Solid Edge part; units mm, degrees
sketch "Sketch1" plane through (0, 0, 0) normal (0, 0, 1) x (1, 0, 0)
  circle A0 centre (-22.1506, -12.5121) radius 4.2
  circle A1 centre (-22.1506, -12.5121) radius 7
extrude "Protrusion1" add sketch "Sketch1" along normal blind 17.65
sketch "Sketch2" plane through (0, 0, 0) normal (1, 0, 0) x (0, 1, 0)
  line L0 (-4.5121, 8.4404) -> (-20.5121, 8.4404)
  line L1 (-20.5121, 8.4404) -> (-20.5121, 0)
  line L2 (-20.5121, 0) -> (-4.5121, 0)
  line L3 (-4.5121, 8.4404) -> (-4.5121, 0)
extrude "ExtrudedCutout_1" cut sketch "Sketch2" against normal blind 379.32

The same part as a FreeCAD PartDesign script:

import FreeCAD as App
import Part
import Sketcher
from FreeCAD import Vector


def add_polygon(sketch, points):
    """Adds a closed chain of lines whose ends are joined by coincident constraints."""
    first, n = sketch.GeometryCount, len(points)
    for a, b in zip(points, points[1:] + points[:1]):
        sketch.addGeometry(Part.LineSegment(App.Vector(*a, 0), App.Vector(*b, 0)), False)
    for i in range(n):
        sketch.addConstraint(Sketcher.Constraint("Coincident", first + i, 2, first + (i + 1) % n, 1))

doc = App.newDocument("Part")
body = doc.addObject("PartDesign::Body", "Body")

sketch1 = doc.addObject("Sketcher::SketchObject", "Sketch")
body.addObject(sketch1)
sketch1.AttachmentSupport = (doc.XY_Plane, [""])
sketch1.MapMode = "FlatFace"
sketch1.addGeometry([
    Part.Circle(Vector(-22.2, -12.5, 0), Vector(0, 0, 1), 7),
    Part.Circle(Vector(-22.2, -12.5, 0), Vector(0, 0, 1), 4.2),
], False)
sketch1.addConstraint([
    Sketcher.Constraint("Coincident", 1, 3, 0, 3),
    Sketcher.Constraint("Diameter", 0, 14.0),
    Sketcher.Constraint("Diameter", 1, 8.4),
    Sketcher.Constraint("DistanceY", 0, 3, -1, 1, 12.512),
    Sketcher.Constraint("DistanceX", 0, 3, -1, 1, 22.1506),
])
pad1 = doc.addObject("PartDesign::Pad", "Pad")
body.addObject(pad1)
pad1.Profile = sketch1
pad1.Length = 17.65

sketch2 = doc.addObject("Sketcher::SketchObject", "Sketch001")
body.addObject(sketch2)
sketch2.AttachmentSupport = (doc.YZ_Plane, [""])
sketch2.MapMode = "FlatFace"
add_polygon(sketch2, [(-5, 0), (-5, 8), (-21, 8), (-21, 0)])
sketch2.addConstraint([
    Sketcher.Constraint("Vertical", 0),
    Sketcher.Constraint("Horizontal", 1),
    Sketcher.Constraint("Vertical", 2),
    Sketcher.Constraint("Horizontal", 3),
    Sketcher.Constraint("PointOnObject", 2, 2, -1),
    Sketcher.Constraint("DistanceX", 1, 2, 1, 1, 16.0),
    Sketcher.Constraint("DistanceY", 0, 1, 0, 2, 8.4404),
    Sketcher.Constraint("DistanceX", 0, 2, -1, 1, 4.512),
])
pocket1 = doc.addObject("PartDesign::Pocket", "Pocket")
body.addObject(pocket1)
pocket1.Profile = sketch2
pocket1.Length = 379.32

doc.recompute()
